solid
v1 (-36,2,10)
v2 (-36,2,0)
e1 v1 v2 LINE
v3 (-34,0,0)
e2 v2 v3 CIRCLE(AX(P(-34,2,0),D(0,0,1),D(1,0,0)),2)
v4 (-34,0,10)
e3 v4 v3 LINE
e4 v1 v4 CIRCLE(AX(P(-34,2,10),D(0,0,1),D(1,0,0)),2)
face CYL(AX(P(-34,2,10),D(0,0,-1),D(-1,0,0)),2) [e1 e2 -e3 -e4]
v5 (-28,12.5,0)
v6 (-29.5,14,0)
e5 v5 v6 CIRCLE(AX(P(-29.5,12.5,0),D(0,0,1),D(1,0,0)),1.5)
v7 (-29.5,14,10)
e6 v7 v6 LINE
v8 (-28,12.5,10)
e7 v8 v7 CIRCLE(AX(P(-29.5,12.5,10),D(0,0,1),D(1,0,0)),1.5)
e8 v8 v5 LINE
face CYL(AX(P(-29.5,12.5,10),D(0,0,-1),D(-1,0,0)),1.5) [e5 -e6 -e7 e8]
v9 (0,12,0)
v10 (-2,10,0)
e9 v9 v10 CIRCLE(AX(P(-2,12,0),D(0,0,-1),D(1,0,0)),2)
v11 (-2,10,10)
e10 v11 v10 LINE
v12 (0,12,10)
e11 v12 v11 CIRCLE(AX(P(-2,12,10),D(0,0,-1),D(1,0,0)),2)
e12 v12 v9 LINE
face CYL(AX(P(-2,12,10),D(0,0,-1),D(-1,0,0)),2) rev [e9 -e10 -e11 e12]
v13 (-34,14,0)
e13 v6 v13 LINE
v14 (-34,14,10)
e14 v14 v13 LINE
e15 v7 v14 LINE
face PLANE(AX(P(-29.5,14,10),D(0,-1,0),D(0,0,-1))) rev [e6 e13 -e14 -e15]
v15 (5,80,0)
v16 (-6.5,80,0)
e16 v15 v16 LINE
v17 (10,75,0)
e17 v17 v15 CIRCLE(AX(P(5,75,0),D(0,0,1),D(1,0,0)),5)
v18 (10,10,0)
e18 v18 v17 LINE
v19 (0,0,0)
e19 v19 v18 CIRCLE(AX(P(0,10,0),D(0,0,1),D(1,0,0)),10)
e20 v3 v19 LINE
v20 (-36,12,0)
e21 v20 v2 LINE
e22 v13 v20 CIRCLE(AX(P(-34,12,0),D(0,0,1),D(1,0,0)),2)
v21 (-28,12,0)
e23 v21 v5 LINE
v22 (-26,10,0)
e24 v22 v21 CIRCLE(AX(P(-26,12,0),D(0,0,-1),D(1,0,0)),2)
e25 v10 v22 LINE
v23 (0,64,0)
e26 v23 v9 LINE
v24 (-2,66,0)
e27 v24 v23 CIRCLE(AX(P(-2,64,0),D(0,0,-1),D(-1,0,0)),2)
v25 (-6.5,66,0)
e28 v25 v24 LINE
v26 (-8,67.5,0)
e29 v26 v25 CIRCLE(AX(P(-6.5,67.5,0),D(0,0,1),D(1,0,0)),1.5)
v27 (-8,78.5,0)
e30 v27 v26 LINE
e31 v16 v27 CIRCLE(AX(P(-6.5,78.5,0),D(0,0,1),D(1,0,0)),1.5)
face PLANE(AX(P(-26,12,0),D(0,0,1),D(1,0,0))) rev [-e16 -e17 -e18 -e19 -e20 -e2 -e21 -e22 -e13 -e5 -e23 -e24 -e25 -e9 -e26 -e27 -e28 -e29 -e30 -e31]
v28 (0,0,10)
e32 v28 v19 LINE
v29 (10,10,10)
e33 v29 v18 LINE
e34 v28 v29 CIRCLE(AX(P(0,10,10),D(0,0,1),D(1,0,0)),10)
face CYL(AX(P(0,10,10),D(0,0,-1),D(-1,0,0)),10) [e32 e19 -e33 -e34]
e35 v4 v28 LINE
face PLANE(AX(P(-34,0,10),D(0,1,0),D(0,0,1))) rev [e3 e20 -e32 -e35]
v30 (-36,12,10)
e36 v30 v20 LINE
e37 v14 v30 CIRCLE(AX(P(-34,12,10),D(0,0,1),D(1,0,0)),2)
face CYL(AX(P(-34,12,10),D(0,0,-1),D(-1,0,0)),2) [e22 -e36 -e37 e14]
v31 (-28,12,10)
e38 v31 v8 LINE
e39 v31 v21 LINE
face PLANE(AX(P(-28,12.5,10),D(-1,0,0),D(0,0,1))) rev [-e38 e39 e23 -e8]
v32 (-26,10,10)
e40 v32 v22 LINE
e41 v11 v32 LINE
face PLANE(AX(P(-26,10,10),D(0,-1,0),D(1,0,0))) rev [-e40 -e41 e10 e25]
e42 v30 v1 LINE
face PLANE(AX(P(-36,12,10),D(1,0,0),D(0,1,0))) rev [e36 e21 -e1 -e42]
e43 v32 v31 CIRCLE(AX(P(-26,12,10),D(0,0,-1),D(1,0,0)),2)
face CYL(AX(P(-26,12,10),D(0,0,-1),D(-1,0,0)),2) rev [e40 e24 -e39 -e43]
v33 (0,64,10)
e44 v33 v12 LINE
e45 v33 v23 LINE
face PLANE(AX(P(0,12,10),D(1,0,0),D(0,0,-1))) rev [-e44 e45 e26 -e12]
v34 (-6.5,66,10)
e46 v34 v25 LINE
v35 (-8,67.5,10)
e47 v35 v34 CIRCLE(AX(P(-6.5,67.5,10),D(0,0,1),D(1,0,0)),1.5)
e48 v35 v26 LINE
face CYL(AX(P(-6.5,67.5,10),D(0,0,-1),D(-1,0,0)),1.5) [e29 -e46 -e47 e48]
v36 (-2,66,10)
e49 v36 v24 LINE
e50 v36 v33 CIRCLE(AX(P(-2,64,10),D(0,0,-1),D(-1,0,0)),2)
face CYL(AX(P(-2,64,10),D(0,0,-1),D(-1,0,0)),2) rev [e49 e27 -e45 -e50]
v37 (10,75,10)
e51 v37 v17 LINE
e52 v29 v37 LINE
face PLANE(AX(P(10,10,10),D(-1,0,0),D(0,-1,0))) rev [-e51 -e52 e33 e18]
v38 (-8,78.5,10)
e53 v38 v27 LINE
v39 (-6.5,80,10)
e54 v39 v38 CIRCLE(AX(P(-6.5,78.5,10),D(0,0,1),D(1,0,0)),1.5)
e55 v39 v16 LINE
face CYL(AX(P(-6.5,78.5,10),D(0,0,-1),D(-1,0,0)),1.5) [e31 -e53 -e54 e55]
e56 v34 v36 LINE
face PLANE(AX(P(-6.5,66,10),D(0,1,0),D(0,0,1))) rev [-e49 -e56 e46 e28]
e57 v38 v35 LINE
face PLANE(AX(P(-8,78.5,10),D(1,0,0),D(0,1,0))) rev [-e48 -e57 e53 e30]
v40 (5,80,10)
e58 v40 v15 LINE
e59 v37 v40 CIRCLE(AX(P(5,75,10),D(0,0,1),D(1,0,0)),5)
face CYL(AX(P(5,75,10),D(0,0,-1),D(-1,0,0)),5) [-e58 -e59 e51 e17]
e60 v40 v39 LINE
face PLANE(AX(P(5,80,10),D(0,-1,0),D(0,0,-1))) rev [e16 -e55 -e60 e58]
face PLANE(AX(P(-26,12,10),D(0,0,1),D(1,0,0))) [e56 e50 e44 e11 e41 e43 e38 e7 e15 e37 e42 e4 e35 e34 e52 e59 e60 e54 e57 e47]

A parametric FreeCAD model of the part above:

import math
import FreeCAD as App
import Part
import Sketcher

doc = App.newDocument("Part")
params = doc.addObject("Spreadsheet::Sheet", "Params")
for row, (alias, value) in enumerate([
    ("sketch1_radius", "2 mm"),
    ("sketch1_radius2", "10 mm"),
    ("sketch1_radius3", "5 mm"),
    ("sketch1_radius4", "1.5 mm"),
    ("sketch1_width", "24 mm"),
    ("pad1_length", "10 mm"),
], start=1):
    params.set(f"A{row}", alias)
    params.set(f"B{row}", "=" + value)
    params.setAlias(f"B{row}", alias)

body = doc.addObject("PartDesign::Body", "Body")

sketch1 = body.newObject("Sketcher::SketchObject", "Sketch")
sketch1.AttachmentSupport = (doc.getObject("XY_Plane"), [""])
sketch1.MapMode = "FlatFace"
sketch1.addGeometry([
    Part.LineSegment(App.Vector(-6.5, 66, 0), App.Vector(-2, 66, 0)),
    Part.ArcOfCircle(Part.Circle(App.Vector(-2, 64, 0), App.Vector(0, 0, 1), 2), math.radians(0), math.radians(90)),
    Part.LineSegment(App.Vector(0, 64, 0), App.Vector(0, 12, 0)),
    Part.ArcOfCircle(Part.Circle(App.Vector(-2, 12, 0), App.Vector(0, 0, 1), 2), math.radians(-90), math.radians(0)),
    Part.LineSegment(App.Vector(-2, 10, 0), App.Vector(-26, 10, 0)),
    Part.ArcOfCircle(Part.Circle(App.Vector(-26, 12, 0), App.Vector(0, 0, 1), 2), math.radians(-180), math.radians(-90)),
    Part.LineSegment(App.Vector(-28, 12, 0), App.Vector(-28, 12.5, 0)),
    Part.ArcOfCircle(Part.Circle(App.Vector(-29.5, 12.5, 0), App.Vector(0, 0, 1), 1.5), math.radians(0), math.radians(90)),
    Part.LineSegment(App.Vector(-29.5, 14, 0), App.Vector(-34, 14, 0)),
    Part.ArcOfCircle(Part.Circle(App.Vector(-34, 12, 0), App.Vector(0, 0, 1), 2), math.radians(90), math.radians(180)),
    Part.LineSegment(App.Vector(-36, 12, 0), App.Vector(-36, 2, 0)),
    Part.ArcOfCircle(Part.Circle(App.Vector(-34, 2, 0), App.Vector(0, 0, 1), 2), math.radians(-180), math.radians(-90)),
    Part.LineSegment(App.Vector(-34, 0, 0), App.Vector(0, 0, 0)),
    Part.ArcOfCircle(Part.Circle(App.Vector(0, 10, 0), App.Vector(0, 0, 1), 10), math.radians(-90), math.radians(0)),
    Part.LineSegment(App.Vector(10, 10, 0), App.Vector(10, 75, 0)),
    Part.ArcOfCircle(Part.Circle(App.Vector(5, 75, 0), App.Vector(0, 0, 1), 5), math.radians(0), math.radians(90)),
    Part.LineSegment(App.Vector(5, 80, 0), App.Vector(-6.5, 80, 0)),
    Part.ArcOfCircle(Part.Circle(App.Vector(-6.5, 78.5, 0), App.Vector(0, 0, 1), 1.5), math.radians(90), math.radians(180)),
    Part.LineSegment(App.Vector(-8, 78.5, 0), App.Vector(-8, 67.5, 0)),
    Part.ArcOfCircle(Part.Circle(App.Vector(-6.5, 67.5, 0), App.Vector(0, 0, 1), 1.5), math.radians(180), math.radians(270)),
], False)
sketch1.addConstraint([
    Sketcher.Constraint("Tangent", 0, 2, 1, 2),
    Sketcher.Constraint("Tangent", 1, 1, 2, 1),
    Sketcher.Constraint("Tangent", 2, 2, 3, 2),
    Sketcher.Constraint("Tangent", 3, 1, 4, 1),
    Sketcher.Constraint("Tangent", 4, 2, 5, 2),
    Sketcher.Constraint("Tangent", 5, 1, 6, 1),
    Sketcher.Constraint("Tangent", 6, 2, 7, 1),
    Sketcher.Constraint("Tangent", 7, 2, 8, 1),
    Sketcher.Constraint("Tangent", 8, 2, 9, 1),
    Sketcher.Constraint("Tangent", 9, 2, 10, 1),
    Sketcher.Constraint("Tangent", 10, 2, 11, 1),
    Sketcher.Constraint("Tangent", 11, 2, 12, 1),
    Sketcher.Constraint("Tangent", 12, 2, 13, 1),
    Sketcher.Constraint("Tangent", 13, 2, 14, 1),
    Sketcher.Constraint("Tangent", 14, 2, 15, 1),
    Sketcher.Constraint("Tangent", 15, 2, 16, 1),
    Sketcher.Constraint("Tangent", 16, 2, 17, 1),
    Sketcher.Constraint("Tangent", 17, 2, 18, 1),
    Sketcher.Constraint("Tangent", 18, 2, 19, 1),
    Sketcher.Constraint("Tangent", 19, 2, 0, 1),
    Sketcher.Constraint("Horizontal", 0),
    Sketcher.Constraint("Vertical", 2),
    Sketcher.Constraint("Horizontal", 4),
    Sketcher.Constraint("Vertical", 6),
    Sketcher.Constraint("Horizontal", 8),
    Sketcher.Constraint("Vertical", 10),
    Sketcher.Constraint("Horizontal", 12),
    Sketcher.Constraint("Vertical", 14),
    Sketcher.Constraint("Horizontal", 16),
    Sketcher.Constraint("Vertical", 18),
    Sketcher.Constraint("Coincident", 12, 2, -1, 1),
    Sketcher.Constraint("Equal", 1, 3),
    Sketcher.Constraint("Equal", 3, 5),
    Sketcher.Constraint("Equal", 5, 9),
    Sketcher.Constraint("Equal", 9, 11),
    Sketcher.Constraint("Equal", 7, 17),
    Sketcher.Constraint("Equal", 17, 19),
    Sketcher.Constraint("PointOnObject", 1, 1, -2),
    Sketcher.Constraint("Horizontal", 5, 3, 9, 3),
    Sketcher.Constraint("Horizontal", 13, 3, 3, 1),
    Sketcher.Constraint("Equal", 0, 8),
    Sketcher.Constraint("Radius", 1, 2.0),
    Sketcher.Constraint("Radius", 13, 10.0),
    Sketcher.Constraint("Radius", 15, 5.0),
    Sketcher.Constraint("Radius", 7, 1.5),
    Sketcher.Constraint("DistanceX", 4, 2, 4, 1, 24.0),
    Sketcher.Constraint("DistanceX", 12, 1, 12, 2, 34.0),
    Sketcher.Constraint("DistanceY", 2, 2, 2, 1, 52.0),
    Sketcher.Constraint("DistanceY", 14, 1, 14, 2, 65.0),
])
sketch1.setExpression("Constraints[41]", "Params.sketch1_radius")
sketch1.setExpression("Constraints[42]", "Params.sketch1_radius2")
sketch1.setExpression("Constraints[43]", "Params.sketch1_radius3")
sketch1.setExpression("Constraints[44]", "Params.sketch1_radius4")
sketch1.setExpression("Constraints[45]", "Params.sketch1_width")
pad1 = body.newObject("PartDesign::Pad", "Pad")
pad1.Profile = sketch1
pad1.setExpression("Length", "Params.pad1_length")

doc.recompute()
